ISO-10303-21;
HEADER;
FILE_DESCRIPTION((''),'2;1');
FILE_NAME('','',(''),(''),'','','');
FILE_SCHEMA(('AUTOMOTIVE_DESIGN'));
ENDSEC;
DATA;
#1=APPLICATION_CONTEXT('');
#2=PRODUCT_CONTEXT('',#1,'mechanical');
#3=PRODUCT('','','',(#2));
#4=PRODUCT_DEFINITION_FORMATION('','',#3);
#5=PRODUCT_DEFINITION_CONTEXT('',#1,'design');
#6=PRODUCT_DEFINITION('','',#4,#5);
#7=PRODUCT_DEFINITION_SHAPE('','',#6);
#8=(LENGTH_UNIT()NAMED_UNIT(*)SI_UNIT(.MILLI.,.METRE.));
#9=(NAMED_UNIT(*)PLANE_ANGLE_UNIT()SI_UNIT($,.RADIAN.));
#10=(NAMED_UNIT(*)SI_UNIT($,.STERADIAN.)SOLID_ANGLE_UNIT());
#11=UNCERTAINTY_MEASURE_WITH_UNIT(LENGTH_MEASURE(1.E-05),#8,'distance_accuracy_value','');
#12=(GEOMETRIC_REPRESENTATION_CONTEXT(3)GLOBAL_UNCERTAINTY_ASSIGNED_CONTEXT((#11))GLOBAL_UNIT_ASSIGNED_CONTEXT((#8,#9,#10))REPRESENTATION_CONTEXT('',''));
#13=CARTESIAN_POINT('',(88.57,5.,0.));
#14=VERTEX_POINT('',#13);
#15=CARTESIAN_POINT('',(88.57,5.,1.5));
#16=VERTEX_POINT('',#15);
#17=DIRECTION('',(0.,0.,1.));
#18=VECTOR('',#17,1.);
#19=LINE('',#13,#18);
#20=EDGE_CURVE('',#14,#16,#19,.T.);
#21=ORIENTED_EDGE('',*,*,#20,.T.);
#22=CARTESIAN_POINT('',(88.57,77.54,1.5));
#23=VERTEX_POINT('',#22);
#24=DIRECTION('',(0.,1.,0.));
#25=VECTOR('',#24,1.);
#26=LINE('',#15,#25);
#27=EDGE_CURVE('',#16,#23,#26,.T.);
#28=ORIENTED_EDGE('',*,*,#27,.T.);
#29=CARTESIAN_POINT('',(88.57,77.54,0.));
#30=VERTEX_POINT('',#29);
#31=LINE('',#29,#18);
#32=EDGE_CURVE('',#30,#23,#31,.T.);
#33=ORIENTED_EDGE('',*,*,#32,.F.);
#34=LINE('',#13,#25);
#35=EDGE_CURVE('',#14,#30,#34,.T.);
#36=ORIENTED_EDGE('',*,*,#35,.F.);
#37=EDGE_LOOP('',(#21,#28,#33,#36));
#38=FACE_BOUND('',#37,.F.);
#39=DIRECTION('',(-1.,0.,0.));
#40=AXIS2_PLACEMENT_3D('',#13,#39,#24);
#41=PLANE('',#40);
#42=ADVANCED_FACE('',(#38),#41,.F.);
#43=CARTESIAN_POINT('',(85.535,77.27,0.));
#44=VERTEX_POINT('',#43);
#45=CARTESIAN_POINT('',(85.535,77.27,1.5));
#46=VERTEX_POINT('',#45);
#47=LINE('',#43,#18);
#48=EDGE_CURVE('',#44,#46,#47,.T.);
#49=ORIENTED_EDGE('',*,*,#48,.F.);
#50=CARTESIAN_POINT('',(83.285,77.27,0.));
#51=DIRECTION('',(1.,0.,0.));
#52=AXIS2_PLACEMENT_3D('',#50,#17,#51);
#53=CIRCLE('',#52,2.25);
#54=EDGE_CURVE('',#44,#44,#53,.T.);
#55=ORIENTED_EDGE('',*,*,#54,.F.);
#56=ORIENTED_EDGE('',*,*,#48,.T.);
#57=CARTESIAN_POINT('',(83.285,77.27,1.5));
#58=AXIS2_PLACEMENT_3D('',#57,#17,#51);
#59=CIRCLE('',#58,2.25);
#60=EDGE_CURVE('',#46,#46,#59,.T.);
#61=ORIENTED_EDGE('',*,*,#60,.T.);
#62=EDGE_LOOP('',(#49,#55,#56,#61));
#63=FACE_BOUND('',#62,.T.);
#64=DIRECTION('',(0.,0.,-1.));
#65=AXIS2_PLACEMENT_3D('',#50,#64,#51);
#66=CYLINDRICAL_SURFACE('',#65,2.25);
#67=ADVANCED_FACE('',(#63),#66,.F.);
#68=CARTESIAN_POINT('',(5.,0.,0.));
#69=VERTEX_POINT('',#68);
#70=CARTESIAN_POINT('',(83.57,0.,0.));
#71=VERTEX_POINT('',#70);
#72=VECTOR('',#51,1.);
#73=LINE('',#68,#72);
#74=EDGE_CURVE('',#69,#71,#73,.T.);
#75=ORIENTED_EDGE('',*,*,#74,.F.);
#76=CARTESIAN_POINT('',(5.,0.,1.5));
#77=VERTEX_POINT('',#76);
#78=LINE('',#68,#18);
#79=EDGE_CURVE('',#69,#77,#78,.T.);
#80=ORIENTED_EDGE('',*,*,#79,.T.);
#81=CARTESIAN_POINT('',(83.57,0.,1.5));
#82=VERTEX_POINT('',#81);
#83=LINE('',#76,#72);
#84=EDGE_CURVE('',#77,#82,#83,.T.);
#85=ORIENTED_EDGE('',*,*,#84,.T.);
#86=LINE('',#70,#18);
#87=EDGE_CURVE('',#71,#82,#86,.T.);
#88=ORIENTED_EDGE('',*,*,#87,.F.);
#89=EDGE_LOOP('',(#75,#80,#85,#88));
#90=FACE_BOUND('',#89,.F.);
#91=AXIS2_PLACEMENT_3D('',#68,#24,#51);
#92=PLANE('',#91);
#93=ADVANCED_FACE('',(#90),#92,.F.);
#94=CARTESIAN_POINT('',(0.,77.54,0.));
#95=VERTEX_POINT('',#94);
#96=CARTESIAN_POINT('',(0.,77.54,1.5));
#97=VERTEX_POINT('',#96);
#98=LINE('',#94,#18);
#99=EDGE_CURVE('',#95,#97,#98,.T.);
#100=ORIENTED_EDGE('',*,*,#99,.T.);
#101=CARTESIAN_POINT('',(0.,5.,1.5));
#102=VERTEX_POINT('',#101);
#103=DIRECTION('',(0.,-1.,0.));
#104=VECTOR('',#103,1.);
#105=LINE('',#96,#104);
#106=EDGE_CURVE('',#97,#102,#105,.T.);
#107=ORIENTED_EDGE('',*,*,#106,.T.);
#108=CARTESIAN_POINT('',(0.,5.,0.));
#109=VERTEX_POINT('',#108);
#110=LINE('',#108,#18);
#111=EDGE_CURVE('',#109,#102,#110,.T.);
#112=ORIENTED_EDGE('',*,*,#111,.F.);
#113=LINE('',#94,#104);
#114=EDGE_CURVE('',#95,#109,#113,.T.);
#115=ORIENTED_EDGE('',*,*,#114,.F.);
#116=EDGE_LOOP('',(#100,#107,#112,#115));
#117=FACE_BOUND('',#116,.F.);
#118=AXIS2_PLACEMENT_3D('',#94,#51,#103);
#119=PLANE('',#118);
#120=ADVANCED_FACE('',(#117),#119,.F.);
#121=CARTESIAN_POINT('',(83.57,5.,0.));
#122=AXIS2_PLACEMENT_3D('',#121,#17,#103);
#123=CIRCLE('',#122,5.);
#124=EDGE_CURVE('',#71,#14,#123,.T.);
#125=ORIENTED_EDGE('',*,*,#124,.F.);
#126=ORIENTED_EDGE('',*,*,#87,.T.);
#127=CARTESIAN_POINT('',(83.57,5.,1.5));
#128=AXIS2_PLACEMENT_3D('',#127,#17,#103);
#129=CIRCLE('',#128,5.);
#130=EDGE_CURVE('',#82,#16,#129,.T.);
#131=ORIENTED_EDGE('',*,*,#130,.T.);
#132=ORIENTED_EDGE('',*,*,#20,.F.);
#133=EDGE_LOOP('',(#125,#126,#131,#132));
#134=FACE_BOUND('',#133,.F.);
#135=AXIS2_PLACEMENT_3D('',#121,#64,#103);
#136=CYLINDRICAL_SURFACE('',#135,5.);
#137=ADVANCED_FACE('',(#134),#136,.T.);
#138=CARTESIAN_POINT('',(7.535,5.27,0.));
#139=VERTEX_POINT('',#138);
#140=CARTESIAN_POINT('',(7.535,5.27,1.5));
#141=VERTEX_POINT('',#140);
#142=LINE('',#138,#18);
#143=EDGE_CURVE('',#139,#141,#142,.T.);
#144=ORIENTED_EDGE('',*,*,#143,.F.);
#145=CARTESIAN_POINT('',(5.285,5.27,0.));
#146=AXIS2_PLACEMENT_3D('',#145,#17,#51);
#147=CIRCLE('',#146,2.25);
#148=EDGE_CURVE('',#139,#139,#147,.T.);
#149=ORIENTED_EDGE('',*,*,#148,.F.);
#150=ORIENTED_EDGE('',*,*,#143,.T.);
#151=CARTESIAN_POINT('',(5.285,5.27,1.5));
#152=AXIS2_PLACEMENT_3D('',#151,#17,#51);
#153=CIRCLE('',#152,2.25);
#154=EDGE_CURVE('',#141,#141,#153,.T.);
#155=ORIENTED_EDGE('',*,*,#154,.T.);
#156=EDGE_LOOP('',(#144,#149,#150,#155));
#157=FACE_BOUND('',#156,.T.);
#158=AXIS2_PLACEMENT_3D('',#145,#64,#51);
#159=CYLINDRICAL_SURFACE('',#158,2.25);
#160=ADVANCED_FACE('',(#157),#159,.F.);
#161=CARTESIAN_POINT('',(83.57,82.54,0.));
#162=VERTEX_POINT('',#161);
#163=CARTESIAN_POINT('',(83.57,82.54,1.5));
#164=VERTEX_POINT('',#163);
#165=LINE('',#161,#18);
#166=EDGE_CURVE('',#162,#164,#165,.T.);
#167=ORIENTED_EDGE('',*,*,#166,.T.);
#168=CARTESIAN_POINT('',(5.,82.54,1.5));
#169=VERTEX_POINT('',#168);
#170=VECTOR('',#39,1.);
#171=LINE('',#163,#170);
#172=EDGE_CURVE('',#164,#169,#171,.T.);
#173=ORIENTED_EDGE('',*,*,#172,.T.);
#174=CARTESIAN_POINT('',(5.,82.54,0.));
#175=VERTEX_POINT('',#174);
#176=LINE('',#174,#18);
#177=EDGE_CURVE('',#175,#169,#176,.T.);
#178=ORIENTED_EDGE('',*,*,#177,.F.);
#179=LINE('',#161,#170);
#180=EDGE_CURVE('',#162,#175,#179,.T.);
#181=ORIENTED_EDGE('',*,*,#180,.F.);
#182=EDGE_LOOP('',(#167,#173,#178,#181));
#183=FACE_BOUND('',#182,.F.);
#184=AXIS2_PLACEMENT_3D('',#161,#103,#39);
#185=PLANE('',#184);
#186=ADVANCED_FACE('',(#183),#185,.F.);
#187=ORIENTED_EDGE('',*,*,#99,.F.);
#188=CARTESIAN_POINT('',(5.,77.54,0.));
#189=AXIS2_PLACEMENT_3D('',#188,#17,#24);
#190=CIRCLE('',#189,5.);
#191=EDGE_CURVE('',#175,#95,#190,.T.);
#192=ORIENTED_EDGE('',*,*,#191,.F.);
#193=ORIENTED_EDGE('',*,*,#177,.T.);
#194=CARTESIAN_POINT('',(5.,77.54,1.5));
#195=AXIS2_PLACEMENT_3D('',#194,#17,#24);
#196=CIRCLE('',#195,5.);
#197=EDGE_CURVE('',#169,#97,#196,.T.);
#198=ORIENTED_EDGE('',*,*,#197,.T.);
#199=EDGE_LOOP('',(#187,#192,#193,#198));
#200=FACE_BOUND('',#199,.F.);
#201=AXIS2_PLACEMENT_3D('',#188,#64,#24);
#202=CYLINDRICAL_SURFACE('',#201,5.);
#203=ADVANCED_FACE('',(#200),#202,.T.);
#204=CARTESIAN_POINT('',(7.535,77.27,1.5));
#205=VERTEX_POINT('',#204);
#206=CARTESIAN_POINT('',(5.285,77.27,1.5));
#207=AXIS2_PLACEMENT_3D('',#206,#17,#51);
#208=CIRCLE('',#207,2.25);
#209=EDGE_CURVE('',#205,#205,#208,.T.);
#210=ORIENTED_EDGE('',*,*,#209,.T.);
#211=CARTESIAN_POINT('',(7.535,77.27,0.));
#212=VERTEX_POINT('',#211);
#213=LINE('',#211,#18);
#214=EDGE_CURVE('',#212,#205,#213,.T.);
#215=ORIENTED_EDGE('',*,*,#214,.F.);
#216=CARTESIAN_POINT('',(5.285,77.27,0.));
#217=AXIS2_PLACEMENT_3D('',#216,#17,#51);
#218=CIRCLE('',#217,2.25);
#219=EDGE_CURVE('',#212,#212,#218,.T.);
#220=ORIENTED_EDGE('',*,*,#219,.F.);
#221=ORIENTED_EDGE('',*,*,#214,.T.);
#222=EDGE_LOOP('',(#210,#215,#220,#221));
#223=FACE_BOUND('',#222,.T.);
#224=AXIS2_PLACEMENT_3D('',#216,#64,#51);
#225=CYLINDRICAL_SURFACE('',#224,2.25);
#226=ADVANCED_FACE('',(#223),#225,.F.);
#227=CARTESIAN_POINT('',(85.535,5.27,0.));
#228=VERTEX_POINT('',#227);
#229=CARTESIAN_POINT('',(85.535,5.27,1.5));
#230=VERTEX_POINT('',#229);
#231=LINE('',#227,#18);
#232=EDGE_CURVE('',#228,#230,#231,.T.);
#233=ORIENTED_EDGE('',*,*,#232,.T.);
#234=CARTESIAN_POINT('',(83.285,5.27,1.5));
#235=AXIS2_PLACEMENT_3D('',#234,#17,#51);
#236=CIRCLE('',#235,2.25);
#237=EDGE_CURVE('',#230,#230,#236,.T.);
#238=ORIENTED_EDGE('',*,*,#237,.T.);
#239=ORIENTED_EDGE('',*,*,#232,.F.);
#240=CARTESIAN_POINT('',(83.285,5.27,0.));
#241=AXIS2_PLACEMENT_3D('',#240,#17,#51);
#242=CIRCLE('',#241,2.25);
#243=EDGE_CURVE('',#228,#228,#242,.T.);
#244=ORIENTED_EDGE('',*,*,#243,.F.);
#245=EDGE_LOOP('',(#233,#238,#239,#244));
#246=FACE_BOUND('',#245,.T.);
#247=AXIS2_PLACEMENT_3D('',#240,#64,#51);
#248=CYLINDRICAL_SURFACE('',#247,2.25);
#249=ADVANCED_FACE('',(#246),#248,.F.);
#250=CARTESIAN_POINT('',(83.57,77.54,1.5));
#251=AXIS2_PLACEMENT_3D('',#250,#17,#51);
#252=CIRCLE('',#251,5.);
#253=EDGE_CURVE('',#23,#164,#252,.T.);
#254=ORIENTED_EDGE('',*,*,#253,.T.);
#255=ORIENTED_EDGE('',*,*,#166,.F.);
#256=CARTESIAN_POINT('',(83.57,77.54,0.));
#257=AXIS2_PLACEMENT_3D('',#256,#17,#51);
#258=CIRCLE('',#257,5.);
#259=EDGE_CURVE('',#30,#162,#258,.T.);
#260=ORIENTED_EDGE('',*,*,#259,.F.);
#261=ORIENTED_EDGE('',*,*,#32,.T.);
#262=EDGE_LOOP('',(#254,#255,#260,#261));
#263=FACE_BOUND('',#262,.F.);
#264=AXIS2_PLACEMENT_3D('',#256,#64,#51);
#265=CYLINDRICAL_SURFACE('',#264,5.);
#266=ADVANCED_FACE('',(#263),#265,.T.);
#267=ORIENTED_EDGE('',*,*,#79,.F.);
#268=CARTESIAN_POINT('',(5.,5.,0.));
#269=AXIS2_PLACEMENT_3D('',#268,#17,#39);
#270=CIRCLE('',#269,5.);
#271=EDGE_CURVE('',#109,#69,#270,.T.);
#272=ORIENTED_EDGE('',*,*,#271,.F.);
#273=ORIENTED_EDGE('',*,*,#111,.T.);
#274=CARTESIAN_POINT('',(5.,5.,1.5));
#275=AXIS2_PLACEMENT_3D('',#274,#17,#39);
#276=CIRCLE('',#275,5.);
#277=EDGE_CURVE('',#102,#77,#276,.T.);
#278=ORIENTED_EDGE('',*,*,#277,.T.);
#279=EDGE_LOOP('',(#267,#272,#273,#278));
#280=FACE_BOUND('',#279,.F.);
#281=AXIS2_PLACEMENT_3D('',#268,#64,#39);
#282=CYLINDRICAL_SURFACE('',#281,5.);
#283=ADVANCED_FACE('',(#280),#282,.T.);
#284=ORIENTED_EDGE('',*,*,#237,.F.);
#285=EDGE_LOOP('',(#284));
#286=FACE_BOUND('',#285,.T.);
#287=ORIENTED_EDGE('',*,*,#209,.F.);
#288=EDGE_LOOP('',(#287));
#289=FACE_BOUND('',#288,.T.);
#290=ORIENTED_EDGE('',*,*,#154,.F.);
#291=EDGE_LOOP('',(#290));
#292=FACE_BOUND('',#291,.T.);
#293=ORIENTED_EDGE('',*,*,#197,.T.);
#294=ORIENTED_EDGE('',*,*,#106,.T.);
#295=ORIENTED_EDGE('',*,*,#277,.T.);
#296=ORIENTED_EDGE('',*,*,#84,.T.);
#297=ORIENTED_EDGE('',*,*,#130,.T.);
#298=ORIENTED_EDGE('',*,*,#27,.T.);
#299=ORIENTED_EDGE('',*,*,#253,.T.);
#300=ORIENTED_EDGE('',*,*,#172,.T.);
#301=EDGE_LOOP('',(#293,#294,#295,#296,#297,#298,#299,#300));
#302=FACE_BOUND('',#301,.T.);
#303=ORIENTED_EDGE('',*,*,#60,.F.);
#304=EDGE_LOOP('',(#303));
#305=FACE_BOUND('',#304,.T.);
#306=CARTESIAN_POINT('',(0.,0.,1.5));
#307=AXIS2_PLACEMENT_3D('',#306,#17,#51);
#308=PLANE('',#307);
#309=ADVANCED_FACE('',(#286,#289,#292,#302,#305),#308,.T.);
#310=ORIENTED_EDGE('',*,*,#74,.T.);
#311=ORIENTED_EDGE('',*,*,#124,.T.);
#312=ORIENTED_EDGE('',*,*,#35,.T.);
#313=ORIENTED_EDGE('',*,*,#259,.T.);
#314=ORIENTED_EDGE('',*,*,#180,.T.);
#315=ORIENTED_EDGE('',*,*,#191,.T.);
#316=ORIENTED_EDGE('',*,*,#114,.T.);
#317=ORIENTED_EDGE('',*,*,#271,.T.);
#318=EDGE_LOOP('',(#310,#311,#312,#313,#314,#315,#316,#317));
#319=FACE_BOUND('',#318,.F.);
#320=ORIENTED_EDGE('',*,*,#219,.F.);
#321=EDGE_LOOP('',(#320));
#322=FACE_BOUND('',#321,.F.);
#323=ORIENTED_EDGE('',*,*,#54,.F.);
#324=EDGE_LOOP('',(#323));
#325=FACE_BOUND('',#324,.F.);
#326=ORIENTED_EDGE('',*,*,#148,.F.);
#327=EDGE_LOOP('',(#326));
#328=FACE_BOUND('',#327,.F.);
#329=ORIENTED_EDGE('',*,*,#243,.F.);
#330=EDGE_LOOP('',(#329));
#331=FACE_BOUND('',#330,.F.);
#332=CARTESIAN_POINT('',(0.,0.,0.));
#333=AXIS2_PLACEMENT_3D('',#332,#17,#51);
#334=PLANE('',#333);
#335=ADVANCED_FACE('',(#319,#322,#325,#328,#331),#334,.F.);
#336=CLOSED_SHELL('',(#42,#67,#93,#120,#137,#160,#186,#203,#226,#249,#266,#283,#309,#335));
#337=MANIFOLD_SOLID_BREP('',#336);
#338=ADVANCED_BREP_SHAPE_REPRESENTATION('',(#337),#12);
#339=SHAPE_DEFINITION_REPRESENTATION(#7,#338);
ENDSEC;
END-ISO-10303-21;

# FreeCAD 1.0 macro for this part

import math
import FreeCAD as App
import Part
import Sketcher

doc = App.newDocument("Part")
body = doc.addObject("PartDesign::Body", "Body")

# Sketch on XY plane
sketch1 = body.newObject("Sketcher::SketchObject", "Sketch")
sketch1.AttachmentSupport = (doc.getObject("XY_Plane"), [""])
sketch1.MapMode = "FlatFace"
sketch1.addGeometry([
    Part.ArcOfCircle(Part.Circle(App.Vector(5, 5, 0), App.Vector(0, 0, 1), 5), math.radians(180), math.radians(270)),  # 0
    Part.LineSegment(App.Vector(5, 0, 0), App.Vector(83.6, 0, 0)),  # 1
    Part.ArcOfCircle(Part.Circle(App.Vector(83.6, 5, 0), App.Vector(0, 0, 1), 5), math.radians(-90), math.radians(0)),  # 2
    Part.LineSegment(App.Vector(88.6, 5, 0), App.Vector(88.6, 77.5, 0)),  # 3
    Part.ArcOfCircle(Part.Circle(App.Vector(83.6, 77.5, 0), App.Vector(0, 0, 1), 5), math.radians(0), math.radians(90)),  # 4
    Part.LineSegment(App.Vector(83.6, 82.5, 0), App.Vector(5, 82.5, 0)),  # 5
    Part.ArcOfCircle(Part.Circle(App.Vector(5, 77.5, 0), App.Vector(0, 0, 1), 5), math.radians(90), math.radians(180)),  # 6
    Part.LineSegment(App.Vector(0, 77.5, 0), App.Vector(0, 5, 0)),  # 7
    Part.Circle(App.Vector(5.3, 5.3, 0), App.Vector(0, 0, 1), 2.2),  # 8
    Part.Circle(App.Vector(83.3, 5.3, 0), App.Vector(0, 0, 1), 2.2),  # 9
    Part.Circle(App.Vector(5.3, 77.3, 0), App.Vector(0, 0, 1), 2.2),  # 10
    Part.Circle(App.Vector(83.3, 77.3, 0), App.Vector(0, 0, 1), 2.2),  # 11
], False)
sketch1.addConstraint([
    Sketcher.Constraint("Tangent", 0, 2, 1, 1),
    Sketcher.Constraint("Tangent", 1, 2, 2, 1),
    Sketcher.Constraint("Tangent", 2, 2, 3, 1),
    Sketcher.Constraint("Tangent", 3, 2, 4, 1),
    Sketcher.Constraint("Tangent", 4, 2, 5, 1),
    Sketcher.Constraint("Tangent", 5, 2, 6, 1),
    Sketcher.Constraint("Tangent", 6, 2, 7, 1),
    Sketcher.Constraint("Tangent", 7, 2, 0, 1),
    Sketcher.Constraint("Horizontal", 1),
    Sketcher.Constraint("Vertical", 3),
    Sketcher.Constraint("Horizontal", 5),
    Sketcher.Constraint("Vertical", 7),
    Sketcher.Constraint("Equal", 0, 2),
    Sketcher.Constraint("Equal", 2, 4),
    Sketcher.Constraint("Equal", 4, 6),
    Sketcher.Constraint("Equal", 8, 9),
    Sketcher.Constraint("Equal", 9, 10),
    Sketcher.Constraint("Equal", 10, 11),
    Sketcher.Constraint("PointOnObject", 0, 2, -1),
    Sketcher.Constraint("PointOnObject", 6, 2, -2),
    Sketcher.Constraint("Horizontal", 8, 3, 9, 3),
    Sketcher.Constraint("Horizontal", 10, 3, 11, 3),
    Sketcher.Constraint("Vertical", 8, 3, 10, 3),
    Sketcher.Constraint("Vertical", 9, 3, 11, 3),
    Sketcher.Constraint("Radius", 0, 5.0),
    Sketcher.Constraint("Diameter", 8, 4.5),
    Sketcher.Constraint("DistanceX", 8, 3, 9, 3, 78.0),
    Sketcher.Constraint("DistanceY", 8, 3, 10, 3, 72.0),
    Sketcher.Constraint("DistanceY", -1, 1, 8, 3, 5.27),
    Sketcher.Constraint("DistanceX", -1, 1, 2, 2, 88.57),
    Sketcher.Constraint("DistanceY", -1, 1, 4, 2, 82.54),
    Sketcher.Constraint("DistanceX", -1, 1, 8, 3, 5.285),
])
pad1 = body.newObject("PartDesign::Pad", "Pad")
pad1.Profile = sketch1
pad1.Length = 1.5

doc.recompute()
